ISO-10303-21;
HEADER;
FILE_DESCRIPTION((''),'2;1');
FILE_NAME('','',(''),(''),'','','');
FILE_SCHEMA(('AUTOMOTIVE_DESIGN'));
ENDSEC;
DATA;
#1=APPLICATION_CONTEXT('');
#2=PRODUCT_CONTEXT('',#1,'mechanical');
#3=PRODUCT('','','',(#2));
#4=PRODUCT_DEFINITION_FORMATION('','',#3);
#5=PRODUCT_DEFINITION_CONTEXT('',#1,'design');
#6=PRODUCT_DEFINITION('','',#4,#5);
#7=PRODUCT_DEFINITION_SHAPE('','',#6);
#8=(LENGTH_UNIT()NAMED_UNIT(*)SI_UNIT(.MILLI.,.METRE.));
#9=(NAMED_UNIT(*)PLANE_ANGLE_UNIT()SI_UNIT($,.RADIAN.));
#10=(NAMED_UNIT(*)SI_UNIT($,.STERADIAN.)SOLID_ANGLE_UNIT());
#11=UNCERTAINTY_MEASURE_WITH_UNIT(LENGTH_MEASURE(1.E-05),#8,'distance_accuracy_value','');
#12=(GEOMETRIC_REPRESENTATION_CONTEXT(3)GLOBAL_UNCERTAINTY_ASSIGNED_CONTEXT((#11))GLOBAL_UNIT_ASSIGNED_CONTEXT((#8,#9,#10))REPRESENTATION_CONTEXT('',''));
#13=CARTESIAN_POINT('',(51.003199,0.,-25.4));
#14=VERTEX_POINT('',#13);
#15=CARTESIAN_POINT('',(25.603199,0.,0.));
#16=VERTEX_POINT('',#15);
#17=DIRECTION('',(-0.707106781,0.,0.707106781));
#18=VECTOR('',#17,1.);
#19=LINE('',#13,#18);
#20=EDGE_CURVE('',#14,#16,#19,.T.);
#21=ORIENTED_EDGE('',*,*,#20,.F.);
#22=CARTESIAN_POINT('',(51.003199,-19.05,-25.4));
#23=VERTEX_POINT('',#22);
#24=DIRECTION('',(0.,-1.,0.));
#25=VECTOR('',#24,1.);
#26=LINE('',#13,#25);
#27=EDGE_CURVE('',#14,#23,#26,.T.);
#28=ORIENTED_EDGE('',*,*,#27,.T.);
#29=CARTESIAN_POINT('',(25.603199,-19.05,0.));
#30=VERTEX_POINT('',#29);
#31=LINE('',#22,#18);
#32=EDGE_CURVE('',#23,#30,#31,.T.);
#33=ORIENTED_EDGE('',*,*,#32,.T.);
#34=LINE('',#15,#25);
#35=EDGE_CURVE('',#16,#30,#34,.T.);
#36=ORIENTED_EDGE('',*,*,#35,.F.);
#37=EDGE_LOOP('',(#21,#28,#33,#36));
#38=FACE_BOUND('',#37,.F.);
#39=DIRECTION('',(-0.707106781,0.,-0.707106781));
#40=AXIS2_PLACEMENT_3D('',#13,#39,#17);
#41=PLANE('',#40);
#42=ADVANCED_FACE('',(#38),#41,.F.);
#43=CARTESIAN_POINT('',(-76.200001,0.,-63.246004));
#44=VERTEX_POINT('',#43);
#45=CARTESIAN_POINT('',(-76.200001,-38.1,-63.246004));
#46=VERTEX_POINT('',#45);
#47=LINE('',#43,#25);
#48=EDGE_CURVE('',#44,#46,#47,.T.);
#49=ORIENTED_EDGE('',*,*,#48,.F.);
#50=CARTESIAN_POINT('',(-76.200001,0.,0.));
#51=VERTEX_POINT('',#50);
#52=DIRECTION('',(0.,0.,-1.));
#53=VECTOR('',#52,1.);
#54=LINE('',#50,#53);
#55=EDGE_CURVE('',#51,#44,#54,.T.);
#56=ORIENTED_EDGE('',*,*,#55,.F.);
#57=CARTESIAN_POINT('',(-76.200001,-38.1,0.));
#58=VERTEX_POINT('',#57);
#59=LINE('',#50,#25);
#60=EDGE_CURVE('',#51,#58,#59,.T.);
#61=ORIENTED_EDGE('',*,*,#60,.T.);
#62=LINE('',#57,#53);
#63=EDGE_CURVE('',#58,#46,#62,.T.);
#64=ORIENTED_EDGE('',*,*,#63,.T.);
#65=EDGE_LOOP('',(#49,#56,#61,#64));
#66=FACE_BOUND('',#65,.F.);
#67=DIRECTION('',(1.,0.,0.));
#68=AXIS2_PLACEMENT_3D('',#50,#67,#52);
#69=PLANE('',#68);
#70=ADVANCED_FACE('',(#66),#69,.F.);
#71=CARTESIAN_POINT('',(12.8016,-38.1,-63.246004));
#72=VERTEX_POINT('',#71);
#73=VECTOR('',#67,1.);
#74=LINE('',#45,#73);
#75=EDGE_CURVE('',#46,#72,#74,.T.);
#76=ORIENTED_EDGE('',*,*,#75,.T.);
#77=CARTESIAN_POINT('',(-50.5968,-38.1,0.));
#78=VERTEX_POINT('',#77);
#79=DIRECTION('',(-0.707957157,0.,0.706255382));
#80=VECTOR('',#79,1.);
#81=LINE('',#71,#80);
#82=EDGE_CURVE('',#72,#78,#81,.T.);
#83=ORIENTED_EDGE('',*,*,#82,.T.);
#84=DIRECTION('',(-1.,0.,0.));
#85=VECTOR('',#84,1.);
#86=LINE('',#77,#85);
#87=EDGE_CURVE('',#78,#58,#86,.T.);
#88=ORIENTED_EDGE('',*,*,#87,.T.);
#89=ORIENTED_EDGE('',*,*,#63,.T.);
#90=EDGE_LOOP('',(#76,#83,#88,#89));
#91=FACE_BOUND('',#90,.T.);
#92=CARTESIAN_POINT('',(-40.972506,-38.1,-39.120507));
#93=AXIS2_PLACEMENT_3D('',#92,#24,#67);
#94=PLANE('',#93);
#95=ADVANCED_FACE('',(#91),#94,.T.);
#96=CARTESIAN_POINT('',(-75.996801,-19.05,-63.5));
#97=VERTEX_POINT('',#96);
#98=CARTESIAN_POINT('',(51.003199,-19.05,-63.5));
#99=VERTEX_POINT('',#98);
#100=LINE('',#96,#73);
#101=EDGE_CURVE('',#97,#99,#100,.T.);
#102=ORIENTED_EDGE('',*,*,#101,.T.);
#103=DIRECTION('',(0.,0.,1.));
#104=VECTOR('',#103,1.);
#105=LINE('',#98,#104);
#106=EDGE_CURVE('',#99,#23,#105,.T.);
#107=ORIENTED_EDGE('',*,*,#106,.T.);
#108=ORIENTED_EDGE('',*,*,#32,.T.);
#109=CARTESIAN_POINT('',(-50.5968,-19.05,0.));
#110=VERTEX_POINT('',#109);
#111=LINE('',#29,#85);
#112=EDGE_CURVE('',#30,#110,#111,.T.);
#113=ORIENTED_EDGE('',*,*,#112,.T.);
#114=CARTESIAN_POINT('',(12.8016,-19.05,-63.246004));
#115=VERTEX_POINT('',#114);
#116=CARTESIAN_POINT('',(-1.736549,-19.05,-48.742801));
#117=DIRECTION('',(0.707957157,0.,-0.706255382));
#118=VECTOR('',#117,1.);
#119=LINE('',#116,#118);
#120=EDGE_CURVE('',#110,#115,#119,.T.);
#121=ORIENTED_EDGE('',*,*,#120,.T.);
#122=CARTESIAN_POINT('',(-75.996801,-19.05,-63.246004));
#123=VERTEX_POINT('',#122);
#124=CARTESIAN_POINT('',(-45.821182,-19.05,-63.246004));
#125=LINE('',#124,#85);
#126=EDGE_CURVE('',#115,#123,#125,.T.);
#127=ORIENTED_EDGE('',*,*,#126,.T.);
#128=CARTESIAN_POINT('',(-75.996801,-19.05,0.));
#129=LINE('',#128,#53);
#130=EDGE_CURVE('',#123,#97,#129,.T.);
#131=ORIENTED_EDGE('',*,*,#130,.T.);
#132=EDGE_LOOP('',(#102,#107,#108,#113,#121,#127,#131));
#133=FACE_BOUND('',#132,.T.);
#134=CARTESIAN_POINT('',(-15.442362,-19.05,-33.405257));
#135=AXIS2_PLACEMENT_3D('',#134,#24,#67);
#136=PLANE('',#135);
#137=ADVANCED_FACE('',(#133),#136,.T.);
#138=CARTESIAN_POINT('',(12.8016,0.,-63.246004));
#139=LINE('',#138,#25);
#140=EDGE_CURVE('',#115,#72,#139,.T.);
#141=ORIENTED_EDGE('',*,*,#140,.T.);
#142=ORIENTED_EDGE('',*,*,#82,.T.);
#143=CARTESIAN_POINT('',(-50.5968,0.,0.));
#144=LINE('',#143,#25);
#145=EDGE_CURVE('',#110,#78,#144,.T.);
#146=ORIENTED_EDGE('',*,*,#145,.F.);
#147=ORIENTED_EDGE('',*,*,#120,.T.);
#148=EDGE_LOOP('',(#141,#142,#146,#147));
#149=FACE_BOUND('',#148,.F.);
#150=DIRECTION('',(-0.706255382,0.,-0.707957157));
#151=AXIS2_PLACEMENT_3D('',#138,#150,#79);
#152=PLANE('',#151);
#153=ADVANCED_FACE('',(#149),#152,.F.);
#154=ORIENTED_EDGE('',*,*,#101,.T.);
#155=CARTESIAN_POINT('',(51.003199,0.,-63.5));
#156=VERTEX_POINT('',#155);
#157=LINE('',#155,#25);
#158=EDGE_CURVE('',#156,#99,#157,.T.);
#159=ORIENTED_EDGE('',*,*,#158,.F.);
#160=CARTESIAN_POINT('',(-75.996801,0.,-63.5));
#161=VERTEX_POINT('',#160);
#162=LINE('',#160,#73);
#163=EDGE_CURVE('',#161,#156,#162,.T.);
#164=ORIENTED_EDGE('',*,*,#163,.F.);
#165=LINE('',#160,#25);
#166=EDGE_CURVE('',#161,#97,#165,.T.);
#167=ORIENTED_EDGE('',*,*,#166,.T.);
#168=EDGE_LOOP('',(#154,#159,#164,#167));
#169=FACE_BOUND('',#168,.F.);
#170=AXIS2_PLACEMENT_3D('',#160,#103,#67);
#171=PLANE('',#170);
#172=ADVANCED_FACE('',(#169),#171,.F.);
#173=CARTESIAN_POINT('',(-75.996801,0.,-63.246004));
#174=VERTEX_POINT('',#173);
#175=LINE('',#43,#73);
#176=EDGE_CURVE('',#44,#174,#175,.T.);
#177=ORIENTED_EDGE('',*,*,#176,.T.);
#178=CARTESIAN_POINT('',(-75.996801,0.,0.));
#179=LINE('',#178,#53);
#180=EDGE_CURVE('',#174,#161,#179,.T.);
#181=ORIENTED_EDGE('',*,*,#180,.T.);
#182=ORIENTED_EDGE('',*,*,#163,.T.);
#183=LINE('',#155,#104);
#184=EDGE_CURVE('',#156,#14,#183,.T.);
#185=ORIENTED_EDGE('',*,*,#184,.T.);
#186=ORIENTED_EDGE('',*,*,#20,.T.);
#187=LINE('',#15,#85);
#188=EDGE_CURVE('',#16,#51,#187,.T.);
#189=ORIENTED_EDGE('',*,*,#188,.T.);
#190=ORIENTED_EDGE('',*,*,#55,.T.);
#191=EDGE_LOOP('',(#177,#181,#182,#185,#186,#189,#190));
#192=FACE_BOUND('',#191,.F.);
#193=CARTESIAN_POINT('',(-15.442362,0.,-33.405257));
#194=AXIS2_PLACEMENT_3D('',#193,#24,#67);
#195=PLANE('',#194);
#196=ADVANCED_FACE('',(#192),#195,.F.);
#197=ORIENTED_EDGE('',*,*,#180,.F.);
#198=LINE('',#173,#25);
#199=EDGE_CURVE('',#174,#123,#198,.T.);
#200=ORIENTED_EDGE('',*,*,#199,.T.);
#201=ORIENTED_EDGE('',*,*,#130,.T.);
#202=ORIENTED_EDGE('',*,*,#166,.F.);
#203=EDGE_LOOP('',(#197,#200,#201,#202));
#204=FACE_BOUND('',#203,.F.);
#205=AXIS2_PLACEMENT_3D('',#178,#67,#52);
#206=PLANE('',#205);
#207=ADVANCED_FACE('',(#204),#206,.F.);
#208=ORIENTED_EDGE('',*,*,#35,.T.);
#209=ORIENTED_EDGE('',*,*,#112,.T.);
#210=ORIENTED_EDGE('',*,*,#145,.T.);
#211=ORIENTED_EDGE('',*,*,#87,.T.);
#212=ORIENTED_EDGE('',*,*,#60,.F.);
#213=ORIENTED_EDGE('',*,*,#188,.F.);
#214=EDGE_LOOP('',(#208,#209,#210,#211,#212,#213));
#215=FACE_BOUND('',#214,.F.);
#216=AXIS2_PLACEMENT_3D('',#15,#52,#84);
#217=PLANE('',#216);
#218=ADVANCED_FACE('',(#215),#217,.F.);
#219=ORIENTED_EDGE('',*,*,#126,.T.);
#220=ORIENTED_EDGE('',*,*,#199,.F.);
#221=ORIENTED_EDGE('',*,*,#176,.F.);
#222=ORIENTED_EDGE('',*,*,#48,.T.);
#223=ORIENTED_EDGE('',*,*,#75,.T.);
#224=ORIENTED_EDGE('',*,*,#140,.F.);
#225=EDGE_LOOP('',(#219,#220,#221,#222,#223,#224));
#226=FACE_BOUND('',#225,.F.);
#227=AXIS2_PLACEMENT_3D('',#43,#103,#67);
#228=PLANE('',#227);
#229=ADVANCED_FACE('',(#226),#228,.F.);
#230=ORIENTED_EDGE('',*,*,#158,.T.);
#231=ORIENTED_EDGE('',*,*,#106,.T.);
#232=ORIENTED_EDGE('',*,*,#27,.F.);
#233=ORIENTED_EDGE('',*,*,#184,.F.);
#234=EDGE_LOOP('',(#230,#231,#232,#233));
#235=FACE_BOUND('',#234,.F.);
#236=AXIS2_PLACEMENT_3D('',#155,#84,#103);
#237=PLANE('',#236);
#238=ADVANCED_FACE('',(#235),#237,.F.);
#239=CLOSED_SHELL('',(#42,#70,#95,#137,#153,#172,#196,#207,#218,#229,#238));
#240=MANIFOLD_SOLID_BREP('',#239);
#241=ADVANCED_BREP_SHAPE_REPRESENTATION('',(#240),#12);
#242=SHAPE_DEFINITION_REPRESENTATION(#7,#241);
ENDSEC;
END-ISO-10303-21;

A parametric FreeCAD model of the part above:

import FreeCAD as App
import Part
import Sketcher
from FreeCAD import Vector
Q = App.Units.Quantity

doc = App.newDocument("Part")
params = doc.addObject("Spreadsheet::Sheet", "Params")
for row, (alias, value) in enumerate([
    ("sketch1_width", "4 in"),
    ("sketch1_width2", "5 in"),
    ("sketch1_height", "2.5 in"),
    ("sketch1_height2", "1.5 in"),
    ("pad1_length", "0.75 in"),
    ("sketch2_height", "2.4900002 in"),
    ("sketch2_width", "1.008 in"),
    ("sketch2_width2", "3.504 in"),
    ("pad2_length", "1.5 in"),
], start=1):
    params.set(f"A{row}", alias)
    params.set(f"B{row}", "=" + value)
    params.setAlias(f"B{row}", alias)

body = doc.addObject("PartDesign::Body", "Body")

# Sketch on XZ plane
sketch1 = body.newObject("Sketcher::SketchObject", "Sketch")
sketch1.AttachmentSupport = (doc.getObject("XZ_Plane"), [""])
sketch1.MapMode = "FlatFace"
sketch1.addGeometry([
    Part.LineSegment(Vector(26, 0, 0), Vector(-76, 0, 0)),  # 0
    Part.LineSegment(Vector(-76, 0, 0), Vector(-76, -64, 0)),  # 1
    Part.LineSegment(Vector(-76, -64, 0), Vector(51, -64, 0)),  # 2
    Part.LineSegment(Vector(51, -64, 0), Vector(51, -25, 0)),  # 3
    Part.LineSegment(Vector(51, -25, 0), Vector(26, 0, 0)),  # 4
], False)
sketch1.addConstraint([
    Sketcher.Constraint("Coincident", 0, 2, 1, 1),
    Sketcher.Constraint("Coincident", 1, 2, 2, 1),
    Sketcher.Constraint("Coincident", 2, 2, 3, 1),
    Sketcher.Constraint("Coincident", 3, 2, 4, 1),
    Sketcher.Constraint("Coincident", 4, 2, 0, 1),
    Sketcher.Constraint("Horizontal", 0),
    Sketcher.Constraint("Vertical", 1),
    Sketcher.Constraint("Horizontal", 2),
    Sketcher.Constraint("Vertical", 3),
    Sketcher.Constraint("PointOnObject", 0, 2, -1),
    Sketcher.Constraint("DistanceX", 0, 2, 0, 1, Q("4 in")),
    Sketcher.Constraint("DistanceX", 2, 1, 2, 2, Q("5 in")),
    Sketcher.Constraint("DistanceY", 1, 2, 1, 1, Q("2.5 in")),
    Sketcher.Constraint("DistanceY", 3, 1, 3, 2, Q("1.5 in")),
    Sketcher.Constraint("DistanceX", 0, 2, -1, 1, Q("2.992 in")),
])
sketch1.setExpression("Constraints[10]", "Params.sketch1_width")
sketch1.setExpression("Constraints[11]", "Params.sketch1_width2")
sketch1.setExpression("Constraints[12]", "Params.sketch1_height")
sketch1.setExpression("Constraints[13]", "Params.sketch1_height2")
pad1 = body.newObject("PartDesign::Pad", "Pad")
pad1.Profile = sketch1
pad1.setExpression("Length", "Params.pad1_length")

# Sketch on XZ plane
sketch2 = body.newObject("Sketcher::SketchObject", "Sketch001")
sketch2.AttachmentSupport = (doc.getObject("XZ_Plane"), [""])
sketch2.MapMode = "FlatFace"
sketch2.addGeometry([
    Part.LineSegment(Vector(-51, 0, 0), Vector(-76, 0, 0)),
    Part.LineSegment(Vector(-76, 0, 0), Vector(-76, -63, 0)),
    Part.LineSegment(Vector(-76, -63, 0), Vector(13, -63, 0)),
    Part.LineSegment(Vector(13, -63, 0), Vector(-51, 0, 0)),
], False)
sketch2.addConstraint([
    Sketcher.Constraint("Coincident", 0, 2, 1, 1),
    Sketcher.Constraint("Coincident", 1, 2, 2, 1),
    Sketcher.Constraint("Coincident", 2, 2, 3, 1),
    Sketcher.Constraint("Coincident", 3, 2, 0, 1),
    Sketcher.Constraint("Horizontal", 0),
    Sketcher.Constraint("Vertical", 1),
    Sketcher.Constraint("Horizontal", 2),
    Sketcher.Constraint("PointOnObject", 0, 2, -1),
    Sketcher.Constraint("DistanceX", 0, 2, -1, 1, Q("3 in")),
    Sketcher.Constraint("DistanceY", 1, 2, 1, 1, Q("2.4900002 in")),
    Sketcher.Constraint("DistanceX", 0, 2, 0, 1, Q("1.008 in")),
    Sketcher.Constraint("DistanceX", 2, 1, 2, 2, Q("3.504 in")),
])
sketch2.setExpression("Constraints[9]", "Params.sketch2_height")
sketch2.setExpression("Constraints[10]", "Params.sketch2_width")
sketch2.setExpression("Constraints[11]", "Params.sketch2_width2")
pad2 = body.newObject("PartDesign::Pad", "Pad001")
pad2.Profile = sketch2
pad2.setExpression("Length", "Params.pad2_length")

doc.recompute()
